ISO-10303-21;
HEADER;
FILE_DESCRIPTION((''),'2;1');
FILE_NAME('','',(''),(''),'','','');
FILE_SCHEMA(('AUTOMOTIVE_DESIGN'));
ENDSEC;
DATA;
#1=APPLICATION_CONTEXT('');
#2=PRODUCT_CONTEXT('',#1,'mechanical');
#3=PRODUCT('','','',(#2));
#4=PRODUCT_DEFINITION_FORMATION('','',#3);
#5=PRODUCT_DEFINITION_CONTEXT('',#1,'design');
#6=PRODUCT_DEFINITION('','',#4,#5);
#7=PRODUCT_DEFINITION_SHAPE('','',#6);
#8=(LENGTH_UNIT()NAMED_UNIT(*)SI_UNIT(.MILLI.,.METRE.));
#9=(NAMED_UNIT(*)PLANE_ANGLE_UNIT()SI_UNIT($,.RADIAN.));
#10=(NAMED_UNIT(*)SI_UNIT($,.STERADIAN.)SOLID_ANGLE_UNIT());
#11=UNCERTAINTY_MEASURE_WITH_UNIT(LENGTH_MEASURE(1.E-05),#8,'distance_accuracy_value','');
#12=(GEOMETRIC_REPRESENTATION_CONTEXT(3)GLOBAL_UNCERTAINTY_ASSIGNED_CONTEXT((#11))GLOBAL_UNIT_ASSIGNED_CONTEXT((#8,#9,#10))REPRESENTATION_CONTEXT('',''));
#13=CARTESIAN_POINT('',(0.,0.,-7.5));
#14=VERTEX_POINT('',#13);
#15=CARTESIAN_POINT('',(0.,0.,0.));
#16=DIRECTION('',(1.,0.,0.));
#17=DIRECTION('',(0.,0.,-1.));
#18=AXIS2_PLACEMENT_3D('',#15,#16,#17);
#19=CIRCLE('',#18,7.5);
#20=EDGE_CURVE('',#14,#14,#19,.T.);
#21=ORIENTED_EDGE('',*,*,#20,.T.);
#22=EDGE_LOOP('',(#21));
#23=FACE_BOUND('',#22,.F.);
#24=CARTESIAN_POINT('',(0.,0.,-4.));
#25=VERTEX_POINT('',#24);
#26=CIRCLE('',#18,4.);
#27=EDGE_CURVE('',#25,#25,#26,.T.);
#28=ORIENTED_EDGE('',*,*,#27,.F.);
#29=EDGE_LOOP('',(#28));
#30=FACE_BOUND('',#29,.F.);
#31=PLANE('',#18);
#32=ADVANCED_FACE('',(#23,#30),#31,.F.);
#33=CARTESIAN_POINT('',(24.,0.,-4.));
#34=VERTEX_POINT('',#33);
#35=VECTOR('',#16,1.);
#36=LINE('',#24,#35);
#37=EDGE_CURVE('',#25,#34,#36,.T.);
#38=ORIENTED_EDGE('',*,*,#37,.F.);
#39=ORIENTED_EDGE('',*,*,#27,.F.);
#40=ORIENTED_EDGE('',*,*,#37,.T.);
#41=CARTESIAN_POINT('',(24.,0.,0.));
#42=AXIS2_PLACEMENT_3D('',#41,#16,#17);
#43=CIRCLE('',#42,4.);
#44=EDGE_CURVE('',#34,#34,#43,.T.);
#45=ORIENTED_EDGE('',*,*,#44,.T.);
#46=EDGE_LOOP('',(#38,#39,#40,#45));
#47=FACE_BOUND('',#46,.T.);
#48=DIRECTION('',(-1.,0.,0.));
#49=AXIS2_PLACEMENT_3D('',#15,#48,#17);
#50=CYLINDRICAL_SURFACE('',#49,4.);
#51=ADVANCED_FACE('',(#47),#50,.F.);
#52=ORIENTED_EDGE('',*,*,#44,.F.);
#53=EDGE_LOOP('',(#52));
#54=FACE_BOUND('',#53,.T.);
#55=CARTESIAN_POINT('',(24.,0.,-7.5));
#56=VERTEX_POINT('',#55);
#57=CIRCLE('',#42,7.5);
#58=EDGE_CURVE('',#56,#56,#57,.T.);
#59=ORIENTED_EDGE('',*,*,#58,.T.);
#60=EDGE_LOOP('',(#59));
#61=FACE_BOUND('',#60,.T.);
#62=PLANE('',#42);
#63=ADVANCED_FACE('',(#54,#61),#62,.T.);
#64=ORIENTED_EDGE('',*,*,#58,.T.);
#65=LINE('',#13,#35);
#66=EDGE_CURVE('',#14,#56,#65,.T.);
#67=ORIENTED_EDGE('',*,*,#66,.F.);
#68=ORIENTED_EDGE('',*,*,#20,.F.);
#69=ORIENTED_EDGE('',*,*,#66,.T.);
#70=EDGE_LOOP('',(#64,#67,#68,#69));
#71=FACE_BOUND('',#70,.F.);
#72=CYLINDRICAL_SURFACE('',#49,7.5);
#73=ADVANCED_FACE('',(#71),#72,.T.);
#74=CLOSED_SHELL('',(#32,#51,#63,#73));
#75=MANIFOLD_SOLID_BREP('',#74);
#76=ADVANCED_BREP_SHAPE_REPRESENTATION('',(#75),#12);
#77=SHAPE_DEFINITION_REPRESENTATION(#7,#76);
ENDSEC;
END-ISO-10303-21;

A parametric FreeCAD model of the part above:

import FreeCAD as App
import Part
import Sketcher
from FreeCAD import Vector
Q = App.Units.Quantity

doc = App.newDocument("Part")
body = doc.addObject("PartDesign::Body", "Body")

# Sketch on YZ plane
sketch1 = doc.addObject("Sketcher::SketchObject", "Sketch")
body.addObject(sketch1)
sketch1.AttachmentSupport = (doc.YZ_Plane, [""])
sketch1.MapMode = "FlatFace"
sketch1.addGeometry([
    Part.Circle(Vector(0, 0, 0), Vector(0, 0, 1), 7.5),
    Part.Circle(Vector(0, 0, 0), Vector(0, 0, 1), 4),
], False)
sketch1.addConstraint([
    Sketcher.Constraint("Coincident", 0, 3, -1, 1),
    Sketcher.Constraint("Coincident", 1, 3, -1, 1),
    Sketcher.Constraint("Diameter", 0, Q("15 mm")),
    Sketcher.Constraint("Diameter", 1, Q("8 mm")),
])
pad1 = doc.addObject("PartDesign::Pad", "Pad")
body.addObject(pad1)
pad1.Profile = sketch1
pad1.Length = 24

doc.recompute()
